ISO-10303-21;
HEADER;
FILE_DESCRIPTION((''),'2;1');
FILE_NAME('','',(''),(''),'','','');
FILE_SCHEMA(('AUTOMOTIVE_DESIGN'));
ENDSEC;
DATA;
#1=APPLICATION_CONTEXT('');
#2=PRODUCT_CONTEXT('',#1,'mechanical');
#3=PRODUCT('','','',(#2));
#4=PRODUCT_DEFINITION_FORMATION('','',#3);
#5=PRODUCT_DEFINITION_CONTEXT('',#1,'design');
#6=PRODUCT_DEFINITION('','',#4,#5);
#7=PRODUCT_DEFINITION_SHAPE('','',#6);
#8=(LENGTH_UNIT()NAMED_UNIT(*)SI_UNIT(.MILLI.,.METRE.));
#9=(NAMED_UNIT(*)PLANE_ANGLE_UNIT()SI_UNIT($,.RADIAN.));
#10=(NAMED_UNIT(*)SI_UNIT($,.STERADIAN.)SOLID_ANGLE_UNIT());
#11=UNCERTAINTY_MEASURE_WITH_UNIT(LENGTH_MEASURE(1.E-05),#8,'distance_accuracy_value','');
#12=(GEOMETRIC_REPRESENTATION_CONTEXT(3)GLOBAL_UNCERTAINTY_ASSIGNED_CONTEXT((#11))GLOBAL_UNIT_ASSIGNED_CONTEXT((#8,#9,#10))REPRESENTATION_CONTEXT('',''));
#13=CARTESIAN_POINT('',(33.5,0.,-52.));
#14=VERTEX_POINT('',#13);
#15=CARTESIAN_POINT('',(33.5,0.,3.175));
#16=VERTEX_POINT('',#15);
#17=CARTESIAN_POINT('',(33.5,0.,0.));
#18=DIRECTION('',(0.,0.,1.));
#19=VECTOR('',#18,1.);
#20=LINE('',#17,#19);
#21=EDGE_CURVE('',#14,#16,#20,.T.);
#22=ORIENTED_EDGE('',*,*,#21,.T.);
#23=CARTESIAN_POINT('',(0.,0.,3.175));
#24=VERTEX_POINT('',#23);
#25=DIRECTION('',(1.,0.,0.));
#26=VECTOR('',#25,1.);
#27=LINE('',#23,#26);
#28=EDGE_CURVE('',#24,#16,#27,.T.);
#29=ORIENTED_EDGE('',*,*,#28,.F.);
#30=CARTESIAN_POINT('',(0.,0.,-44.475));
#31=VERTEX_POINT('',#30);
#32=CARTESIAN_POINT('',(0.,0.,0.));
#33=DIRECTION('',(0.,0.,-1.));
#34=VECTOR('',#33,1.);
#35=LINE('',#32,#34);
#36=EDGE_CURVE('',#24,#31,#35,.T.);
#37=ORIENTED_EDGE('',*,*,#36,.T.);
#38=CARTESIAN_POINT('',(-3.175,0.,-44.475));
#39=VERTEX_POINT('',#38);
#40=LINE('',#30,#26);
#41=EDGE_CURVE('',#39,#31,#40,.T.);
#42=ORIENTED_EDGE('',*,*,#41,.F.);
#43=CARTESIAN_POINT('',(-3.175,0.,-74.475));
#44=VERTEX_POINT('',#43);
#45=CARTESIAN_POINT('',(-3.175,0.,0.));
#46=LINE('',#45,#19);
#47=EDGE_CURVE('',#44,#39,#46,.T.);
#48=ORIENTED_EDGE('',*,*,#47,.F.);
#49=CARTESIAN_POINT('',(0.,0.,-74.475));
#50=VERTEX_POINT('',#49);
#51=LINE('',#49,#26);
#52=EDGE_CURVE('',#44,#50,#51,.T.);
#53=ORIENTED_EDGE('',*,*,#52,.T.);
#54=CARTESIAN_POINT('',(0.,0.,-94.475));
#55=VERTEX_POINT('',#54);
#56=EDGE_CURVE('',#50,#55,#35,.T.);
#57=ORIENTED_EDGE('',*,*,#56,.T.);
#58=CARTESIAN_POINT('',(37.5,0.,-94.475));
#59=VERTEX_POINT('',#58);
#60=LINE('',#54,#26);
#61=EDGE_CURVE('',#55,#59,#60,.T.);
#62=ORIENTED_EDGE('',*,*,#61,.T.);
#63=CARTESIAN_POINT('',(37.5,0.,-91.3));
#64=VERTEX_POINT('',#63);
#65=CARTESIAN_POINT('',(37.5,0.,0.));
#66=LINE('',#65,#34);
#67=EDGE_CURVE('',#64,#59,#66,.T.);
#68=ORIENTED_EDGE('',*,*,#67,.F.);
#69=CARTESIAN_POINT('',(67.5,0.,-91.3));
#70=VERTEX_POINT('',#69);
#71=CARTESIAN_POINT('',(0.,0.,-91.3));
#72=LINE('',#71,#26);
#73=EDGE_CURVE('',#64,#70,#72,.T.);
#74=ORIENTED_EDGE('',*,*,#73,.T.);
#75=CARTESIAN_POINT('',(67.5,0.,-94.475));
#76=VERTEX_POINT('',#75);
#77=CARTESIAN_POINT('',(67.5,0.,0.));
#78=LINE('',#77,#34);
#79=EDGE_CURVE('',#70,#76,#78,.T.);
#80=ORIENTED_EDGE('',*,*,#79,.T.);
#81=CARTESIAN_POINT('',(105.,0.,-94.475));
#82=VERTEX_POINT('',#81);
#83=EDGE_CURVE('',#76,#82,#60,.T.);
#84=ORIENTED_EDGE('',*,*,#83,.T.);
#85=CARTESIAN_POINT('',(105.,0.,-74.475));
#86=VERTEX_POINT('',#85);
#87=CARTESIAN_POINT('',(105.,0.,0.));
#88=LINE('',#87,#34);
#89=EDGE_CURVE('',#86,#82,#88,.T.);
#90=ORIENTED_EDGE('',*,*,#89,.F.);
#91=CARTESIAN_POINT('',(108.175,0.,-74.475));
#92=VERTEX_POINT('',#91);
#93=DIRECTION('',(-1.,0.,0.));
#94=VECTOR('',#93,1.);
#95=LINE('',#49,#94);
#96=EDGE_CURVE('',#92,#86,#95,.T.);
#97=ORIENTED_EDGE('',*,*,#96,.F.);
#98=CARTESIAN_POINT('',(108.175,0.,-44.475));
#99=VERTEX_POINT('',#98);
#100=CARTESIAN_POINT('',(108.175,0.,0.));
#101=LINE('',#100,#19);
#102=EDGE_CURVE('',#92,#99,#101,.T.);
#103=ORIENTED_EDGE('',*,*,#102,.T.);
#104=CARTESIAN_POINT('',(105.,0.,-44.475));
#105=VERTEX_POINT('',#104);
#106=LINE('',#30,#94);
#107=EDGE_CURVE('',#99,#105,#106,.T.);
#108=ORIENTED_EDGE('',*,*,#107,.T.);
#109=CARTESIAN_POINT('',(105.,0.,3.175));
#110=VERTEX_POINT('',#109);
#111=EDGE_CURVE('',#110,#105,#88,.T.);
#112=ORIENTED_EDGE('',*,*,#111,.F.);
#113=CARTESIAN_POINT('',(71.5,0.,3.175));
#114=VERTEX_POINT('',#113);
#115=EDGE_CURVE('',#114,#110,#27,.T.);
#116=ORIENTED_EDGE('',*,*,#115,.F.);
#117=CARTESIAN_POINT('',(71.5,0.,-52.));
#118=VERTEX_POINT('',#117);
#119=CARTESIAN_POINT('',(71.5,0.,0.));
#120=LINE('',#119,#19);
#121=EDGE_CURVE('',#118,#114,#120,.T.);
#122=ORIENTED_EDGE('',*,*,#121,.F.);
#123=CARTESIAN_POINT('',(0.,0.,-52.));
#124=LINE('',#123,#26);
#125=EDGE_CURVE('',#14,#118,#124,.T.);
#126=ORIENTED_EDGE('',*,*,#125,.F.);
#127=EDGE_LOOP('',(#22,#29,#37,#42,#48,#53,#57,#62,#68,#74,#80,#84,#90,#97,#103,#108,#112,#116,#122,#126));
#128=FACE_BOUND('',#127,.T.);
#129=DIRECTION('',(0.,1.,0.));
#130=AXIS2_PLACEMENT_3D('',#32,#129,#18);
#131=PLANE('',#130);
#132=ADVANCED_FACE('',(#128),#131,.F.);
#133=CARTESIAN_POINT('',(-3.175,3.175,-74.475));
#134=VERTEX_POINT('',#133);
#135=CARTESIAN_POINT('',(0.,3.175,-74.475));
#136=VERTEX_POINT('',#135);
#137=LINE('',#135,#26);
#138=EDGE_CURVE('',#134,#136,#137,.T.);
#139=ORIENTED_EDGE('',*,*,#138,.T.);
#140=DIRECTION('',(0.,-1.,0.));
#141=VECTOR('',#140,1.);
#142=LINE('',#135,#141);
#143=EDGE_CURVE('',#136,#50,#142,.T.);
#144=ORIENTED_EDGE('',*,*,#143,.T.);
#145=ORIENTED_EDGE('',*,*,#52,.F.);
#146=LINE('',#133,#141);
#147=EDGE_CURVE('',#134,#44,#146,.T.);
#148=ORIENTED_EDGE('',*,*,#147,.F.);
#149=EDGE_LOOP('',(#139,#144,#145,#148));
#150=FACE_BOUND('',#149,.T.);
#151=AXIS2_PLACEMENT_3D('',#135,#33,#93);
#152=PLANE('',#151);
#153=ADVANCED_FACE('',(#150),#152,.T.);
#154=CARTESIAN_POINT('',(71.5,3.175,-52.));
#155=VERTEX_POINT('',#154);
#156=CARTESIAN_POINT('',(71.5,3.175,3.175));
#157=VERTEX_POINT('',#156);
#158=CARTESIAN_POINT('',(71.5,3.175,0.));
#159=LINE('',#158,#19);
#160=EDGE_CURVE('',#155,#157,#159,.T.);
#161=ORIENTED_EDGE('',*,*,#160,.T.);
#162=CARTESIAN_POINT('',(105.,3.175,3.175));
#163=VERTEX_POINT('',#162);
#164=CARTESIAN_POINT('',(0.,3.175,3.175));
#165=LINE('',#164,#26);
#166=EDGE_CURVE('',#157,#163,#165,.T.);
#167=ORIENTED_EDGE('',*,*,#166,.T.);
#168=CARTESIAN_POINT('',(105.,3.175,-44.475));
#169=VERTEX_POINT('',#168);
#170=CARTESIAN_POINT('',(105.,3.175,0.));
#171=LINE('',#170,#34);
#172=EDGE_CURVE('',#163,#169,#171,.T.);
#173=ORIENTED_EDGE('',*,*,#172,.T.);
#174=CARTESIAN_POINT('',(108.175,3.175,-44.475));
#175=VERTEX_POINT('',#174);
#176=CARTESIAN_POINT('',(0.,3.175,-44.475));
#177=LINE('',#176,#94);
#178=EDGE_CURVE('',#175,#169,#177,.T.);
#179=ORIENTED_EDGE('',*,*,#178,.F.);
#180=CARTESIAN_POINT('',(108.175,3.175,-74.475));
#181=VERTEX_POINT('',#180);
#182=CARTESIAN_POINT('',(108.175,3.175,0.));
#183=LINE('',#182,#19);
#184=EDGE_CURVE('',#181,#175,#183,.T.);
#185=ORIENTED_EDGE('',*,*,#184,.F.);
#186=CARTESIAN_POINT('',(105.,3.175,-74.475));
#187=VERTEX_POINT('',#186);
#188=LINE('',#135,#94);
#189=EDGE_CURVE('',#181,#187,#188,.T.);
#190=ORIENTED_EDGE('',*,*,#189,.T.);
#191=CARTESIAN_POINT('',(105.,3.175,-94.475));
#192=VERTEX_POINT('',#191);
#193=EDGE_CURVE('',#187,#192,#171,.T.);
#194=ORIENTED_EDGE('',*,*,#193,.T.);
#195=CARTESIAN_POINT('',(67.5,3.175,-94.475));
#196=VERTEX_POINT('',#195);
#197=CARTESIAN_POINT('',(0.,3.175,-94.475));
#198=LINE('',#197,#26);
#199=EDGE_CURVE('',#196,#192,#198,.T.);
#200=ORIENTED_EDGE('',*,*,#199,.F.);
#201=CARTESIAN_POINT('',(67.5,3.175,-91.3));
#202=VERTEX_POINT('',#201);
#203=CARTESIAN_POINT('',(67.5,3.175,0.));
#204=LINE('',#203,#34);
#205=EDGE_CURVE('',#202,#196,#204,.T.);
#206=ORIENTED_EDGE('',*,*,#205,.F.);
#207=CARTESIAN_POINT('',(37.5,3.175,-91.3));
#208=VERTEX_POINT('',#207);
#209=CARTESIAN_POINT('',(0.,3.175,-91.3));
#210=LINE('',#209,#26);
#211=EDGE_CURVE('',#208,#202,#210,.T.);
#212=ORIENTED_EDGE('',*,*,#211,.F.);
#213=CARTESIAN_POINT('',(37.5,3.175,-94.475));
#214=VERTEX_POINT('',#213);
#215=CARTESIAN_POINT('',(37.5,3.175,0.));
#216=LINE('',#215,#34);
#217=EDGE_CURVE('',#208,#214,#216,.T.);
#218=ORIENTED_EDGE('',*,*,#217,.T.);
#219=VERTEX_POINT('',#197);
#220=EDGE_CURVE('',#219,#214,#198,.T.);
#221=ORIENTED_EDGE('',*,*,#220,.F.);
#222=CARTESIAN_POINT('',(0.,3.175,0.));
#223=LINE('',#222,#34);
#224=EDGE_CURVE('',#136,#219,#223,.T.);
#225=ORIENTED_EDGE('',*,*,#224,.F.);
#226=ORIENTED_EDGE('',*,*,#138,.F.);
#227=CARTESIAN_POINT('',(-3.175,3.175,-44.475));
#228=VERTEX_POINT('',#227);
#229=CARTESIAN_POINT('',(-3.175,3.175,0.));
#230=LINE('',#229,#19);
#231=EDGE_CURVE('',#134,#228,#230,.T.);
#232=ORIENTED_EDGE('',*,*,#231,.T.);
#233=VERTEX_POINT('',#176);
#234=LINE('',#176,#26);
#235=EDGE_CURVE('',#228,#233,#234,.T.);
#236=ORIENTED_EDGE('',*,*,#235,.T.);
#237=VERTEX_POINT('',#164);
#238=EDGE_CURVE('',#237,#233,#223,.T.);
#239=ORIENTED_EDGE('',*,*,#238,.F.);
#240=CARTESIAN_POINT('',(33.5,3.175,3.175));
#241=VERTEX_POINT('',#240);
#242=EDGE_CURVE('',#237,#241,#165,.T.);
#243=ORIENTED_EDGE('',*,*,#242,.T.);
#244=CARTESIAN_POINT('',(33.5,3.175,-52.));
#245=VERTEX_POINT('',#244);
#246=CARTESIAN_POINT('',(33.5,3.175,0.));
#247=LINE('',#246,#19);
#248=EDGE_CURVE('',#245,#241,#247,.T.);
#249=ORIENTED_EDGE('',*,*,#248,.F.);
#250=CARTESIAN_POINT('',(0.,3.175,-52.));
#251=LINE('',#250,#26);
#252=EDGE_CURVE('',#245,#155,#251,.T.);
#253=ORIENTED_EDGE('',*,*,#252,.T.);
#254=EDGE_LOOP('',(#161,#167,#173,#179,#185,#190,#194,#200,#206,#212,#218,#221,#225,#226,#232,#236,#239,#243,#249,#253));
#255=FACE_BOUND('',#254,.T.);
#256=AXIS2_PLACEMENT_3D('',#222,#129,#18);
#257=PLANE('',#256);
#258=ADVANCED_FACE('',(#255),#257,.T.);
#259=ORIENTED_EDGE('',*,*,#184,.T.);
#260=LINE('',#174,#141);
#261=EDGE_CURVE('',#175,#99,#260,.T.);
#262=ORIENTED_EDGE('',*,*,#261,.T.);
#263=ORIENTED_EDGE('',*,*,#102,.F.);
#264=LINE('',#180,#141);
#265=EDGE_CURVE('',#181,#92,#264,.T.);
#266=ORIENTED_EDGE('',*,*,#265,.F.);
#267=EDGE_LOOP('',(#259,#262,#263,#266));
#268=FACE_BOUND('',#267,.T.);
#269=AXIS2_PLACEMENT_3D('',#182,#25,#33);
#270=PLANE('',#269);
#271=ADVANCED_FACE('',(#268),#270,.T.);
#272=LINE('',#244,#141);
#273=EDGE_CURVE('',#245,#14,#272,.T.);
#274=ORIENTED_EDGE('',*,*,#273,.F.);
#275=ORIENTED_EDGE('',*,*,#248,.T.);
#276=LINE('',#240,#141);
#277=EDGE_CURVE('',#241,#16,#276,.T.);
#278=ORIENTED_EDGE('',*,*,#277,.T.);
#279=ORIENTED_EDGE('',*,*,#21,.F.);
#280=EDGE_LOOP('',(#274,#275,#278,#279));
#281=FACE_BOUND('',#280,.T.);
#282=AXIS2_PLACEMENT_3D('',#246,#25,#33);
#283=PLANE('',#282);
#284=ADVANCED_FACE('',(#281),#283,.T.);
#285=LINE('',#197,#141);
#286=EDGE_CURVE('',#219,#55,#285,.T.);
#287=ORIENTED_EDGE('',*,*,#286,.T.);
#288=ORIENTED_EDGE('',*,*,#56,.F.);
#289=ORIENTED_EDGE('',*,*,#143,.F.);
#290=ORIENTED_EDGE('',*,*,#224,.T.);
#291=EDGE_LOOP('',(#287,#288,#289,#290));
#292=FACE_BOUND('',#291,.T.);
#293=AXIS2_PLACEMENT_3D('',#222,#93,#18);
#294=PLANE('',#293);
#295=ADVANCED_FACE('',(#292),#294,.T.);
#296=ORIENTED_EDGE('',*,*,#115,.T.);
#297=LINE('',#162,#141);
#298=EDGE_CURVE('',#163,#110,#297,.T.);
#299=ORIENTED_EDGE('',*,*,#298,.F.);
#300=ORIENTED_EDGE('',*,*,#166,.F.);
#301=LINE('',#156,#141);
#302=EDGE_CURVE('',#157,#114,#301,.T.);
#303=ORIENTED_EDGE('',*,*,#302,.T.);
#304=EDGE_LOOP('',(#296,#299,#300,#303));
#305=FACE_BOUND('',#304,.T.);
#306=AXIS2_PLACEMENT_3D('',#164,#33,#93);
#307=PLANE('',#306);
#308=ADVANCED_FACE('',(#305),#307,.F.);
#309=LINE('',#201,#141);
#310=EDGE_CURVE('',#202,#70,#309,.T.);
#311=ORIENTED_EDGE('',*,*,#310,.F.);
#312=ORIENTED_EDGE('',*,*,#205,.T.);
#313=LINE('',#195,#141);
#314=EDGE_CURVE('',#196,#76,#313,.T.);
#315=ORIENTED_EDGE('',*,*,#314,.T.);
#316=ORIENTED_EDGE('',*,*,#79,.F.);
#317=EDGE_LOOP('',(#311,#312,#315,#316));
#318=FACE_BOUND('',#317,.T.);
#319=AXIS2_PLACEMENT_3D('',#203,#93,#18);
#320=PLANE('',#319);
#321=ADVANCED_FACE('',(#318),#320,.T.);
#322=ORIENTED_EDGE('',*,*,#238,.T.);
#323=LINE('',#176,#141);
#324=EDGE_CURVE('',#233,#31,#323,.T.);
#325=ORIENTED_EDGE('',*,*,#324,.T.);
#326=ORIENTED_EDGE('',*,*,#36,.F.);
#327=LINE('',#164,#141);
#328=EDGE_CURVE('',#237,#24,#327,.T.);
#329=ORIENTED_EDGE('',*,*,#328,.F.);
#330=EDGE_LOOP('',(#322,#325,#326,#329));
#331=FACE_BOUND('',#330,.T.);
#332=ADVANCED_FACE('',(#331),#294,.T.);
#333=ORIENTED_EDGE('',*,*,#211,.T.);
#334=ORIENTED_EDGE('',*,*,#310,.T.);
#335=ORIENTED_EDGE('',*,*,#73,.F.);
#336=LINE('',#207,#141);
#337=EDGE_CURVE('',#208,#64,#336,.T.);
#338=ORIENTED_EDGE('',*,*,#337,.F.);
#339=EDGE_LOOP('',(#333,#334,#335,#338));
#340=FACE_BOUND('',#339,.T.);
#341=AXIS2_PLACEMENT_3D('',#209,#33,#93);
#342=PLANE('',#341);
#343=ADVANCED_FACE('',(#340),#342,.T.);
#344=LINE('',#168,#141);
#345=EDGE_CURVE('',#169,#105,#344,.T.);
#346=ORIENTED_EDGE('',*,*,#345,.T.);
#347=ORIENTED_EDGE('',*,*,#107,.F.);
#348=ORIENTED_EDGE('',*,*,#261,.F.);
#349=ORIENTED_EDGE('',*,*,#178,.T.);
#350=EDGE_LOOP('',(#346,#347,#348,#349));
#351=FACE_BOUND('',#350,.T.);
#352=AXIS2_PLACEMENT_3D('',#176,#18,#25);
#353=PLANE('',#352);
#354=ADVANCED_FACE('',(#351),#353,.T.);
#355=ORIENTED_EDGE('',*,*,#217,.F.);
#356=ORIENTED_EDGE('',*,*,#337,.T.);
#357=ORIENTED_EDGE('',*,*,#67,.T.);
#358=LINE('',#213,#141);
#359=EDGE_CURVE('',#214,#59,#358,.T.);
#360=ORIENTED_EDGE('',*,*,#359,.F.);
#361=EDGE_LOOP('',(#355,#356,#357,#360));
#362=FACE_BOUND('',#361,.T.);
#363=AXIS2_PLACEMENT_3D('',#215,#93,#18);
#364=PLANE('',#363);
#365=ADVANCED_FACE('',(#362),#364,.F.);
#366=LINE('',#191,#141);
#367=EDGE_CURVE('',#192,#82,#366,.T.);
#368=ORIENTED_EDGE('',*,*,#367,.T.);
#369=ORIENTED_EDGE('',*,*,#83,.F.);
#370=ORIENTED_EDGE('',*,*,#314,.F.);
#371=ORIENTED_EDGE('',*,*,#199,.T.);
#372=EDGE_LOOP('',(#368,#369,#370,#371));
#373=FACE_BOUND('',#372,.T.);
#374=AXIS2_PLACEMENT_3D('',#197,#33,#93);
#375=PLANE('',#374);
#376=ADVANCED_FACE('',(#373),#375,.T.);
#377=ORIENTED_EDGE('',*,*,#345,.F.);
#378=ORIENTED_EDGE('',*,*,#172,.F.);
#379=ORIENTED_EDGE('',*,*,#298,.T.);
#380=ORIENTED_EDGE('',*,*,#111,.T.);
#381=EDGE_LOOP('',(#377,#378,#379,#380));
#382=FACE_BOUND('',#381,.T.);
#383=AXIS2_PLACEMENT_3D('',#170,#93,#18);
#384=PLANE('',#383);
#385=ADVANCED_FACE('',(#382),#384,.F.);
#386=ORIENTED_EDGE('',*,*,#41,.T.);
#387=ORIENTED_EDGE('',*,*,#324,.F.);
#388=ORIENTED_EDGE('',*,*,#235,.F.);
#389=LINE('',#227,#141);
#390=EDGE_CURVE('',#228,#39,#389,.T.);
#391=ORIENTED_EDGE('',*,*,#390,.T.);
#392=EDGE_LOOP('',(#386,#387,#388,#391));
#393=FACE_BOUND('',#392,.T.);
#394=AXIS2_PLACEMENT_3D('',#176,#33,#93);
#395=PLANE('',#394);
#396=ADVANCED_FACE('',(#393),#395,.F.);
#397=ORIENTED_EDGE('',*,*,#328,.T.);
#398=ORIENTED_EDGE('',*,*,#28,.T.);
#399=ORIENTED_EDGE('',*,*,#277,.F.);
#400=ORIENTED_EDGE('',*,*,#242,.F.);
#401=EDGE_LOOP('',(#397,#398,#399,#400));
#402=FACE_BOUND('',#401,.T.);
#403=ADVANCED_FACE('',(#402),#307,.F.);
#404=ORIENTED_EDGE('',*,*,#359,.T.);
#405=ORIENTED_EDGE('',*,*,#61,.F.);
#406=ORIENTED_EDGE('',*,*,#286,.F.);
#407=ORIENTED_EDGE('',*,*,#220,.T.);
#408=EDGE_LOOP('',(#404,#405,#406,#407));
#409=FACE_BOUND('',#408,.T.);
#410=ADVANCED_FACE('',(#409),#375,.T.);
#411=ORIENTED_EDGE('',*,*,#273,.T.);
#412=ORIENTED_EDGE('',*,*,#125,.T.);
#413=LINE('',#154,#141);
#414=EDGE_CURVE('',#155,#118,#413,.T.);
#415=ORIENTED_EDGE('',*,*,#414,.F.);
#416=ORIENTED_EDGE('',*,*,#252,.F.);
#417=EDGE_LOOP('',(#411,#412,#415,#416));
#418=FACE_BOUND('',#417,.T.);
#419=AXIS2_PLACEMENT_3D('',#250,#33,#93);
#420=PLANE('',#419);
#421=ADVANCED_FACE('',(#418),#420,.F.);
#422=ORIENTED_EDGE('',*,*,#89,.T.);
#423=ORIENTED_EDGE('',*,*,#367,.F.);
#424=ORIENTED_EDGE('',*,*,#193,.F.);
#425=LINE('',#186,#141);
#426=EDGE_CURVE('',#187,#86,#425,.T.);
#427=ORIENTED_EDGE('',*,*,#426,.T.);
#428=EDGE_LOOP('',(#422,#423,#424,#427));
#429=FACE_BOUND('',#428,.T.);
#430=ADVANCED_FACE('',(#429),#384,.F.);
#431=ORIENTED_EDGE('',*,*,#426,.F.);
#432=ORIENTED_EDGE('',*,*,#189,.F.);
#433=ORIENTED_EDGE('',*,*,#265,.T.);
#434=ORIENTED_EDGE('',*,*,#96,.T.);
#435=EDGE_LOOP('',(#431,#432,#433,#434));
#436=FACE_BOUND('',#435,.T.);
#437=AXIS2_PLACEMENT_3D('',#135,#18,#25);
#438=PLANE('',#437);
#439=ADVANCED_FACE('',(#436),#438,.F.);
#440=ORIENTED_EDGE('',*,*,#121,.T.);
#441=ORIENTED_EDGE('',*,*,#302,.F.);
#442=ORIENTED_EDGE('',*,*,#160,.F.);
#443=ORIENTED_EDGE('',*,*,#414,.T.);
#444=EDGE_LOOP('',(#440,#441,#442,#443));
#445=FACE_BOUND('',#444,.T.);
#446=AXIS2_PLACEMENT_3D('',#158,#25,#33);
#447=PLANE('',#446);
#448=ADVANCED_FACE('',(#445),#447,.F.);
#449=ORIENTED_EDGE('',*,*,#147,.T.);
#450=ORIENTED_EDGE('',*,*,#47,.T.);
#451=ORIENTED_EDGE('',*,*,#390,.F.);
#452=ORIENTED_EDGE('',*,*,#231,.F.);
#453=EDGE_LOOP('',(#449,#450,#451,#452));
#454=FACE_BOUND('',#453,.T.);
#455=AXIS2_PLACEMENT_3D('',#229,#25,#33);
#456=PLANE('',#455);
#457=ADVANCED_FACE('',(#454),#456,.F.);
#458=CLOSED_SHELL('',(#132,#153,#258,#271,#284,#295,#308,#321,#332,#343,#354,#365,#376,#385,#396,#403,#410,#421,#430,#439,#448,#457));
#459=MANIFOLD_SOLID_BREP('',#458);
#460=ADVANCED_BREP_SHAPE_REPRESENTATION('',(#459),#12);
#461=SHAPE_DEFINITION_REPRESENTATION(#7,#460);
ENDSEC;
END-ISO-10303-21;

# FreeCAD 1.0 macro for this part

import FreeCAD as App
import Part
import Sketcher

V = App.Vector
Q = App.Units.Quantity


def add_polygon(sketch, points):
    """Adds a closed chain of lines whose ends are joined by coincident constraints."""
    first, n = sketch.GeometryCount, len(points)
    for a, b in zip(points, points[1:] + points[:1]):
        sketch.addGeometry(Part.LineSegment(App.Vector(*a, 0), App.Vector(*b, 0)), False)
    for i in range(n):
        sketch.addConstraint(Sketcher.Constraint("Coincident", first + i, 2, first + (i + 1) % n, 1))

doc = App.newDocument("Part")
body = doc.addObject("PartDesign::Body", "Body")

sketch1 = body.newObject("Sketcher::SketchObject", "Sketch")
sketch1.AttachmentSupport = (doc.getObject("XZ_Plane"), [""])
sketch1.MapMode = "FlatFace"
add_polygon(sketch1, [(33.5, -52), (71.5, -52), (71.5, 3.175), (105, 3.175), (105, -44.475), (108.175, -44.475), (108.175, -74.475), (105, -74.475), (105, -94.475), (67.5, -94.475), (67.5, -91.3), (37.5, -91.3), (37.5, -94.475), (0, -94.475), (0, -74.475), (-3.175, -74.475), (-3.175, -44.475), (0, -44.475), (0, 3.175), (33.5, 3.175)])
sketch1.addConstraint(Sketcher.Constraint("Horizontal", 0))
sketch1.addConstraint(Sketcher.Constraint("Vertical", 1))
sketch1.addConstraint(Sketcher.Constraint("Horizontal", 2))
sketch1.addConstraint(Sketcher.Constraint("Vertical", 3))
sketch1.addConstraint(Sketcher.Constraint("Horizontal", 4))
sketch1.addConstraint(Sketcher.Constraint("Vertical", 5))
sketch1.addConstraint(Sketcher.Constraint("Horizontal", 6))
sketch1.addConstraint(Sketcher.Constraint("Vertical", 7))
sketch1.addConstraint(Sketcher.Constraint("Horizontal", 8))
sketch1.addConstraint(Sketcher.Constraint("Vertical", 9))
sketch1.addConstraint(Sketcher.Constraint("Horizontal", 10))
sketch1.addConstraint(Sketcher.Constraint("Vertical", 11))
sketch1.addConstraint(Sketcher.Constraint("Horizontal", 12))
sketch1.addConstraint(Sketcher.Constraint("Vertical", 13))
sketch1.addConstraint(Sketcher.Constraint("Horizontal", 14))
sketch1.addConstraint(Sketcher.Constraint("Vertical", 15))
sketch1.addConstraint(Sketcher.Constraint("Horizontal", 16))
sketch1.addConstraint(Sketcher.Constraint("Vertical", 17))
sketch1.addConstraint(Sketcher.Constraint("Horizontal", 18))
sketch1.addConstraint(Sketcher.Constraint("Vertical", 19))
sketch1.addConstraint(Sketcher.Constraint("PointOnObject", 12, 2, -2))
sketch1.addConstraint(Sketcher.Constraint("PointOnObject", 16, 2, -2))
sketch1.addConstraint(Sketcher.Constraint("Horizontal", 8, 2, 11, 2))
sketch1.addConstraint(Sketcher.Constraint("Horizontal", 6, 2, 13, 2))
sketch1.addConstraint(Sketcher.Constraint("Horizontal", 4, 2, 15, 2))
sketch1.addConstraint(Sketcher.Constraint("Horizontal", 2, 2, 17, 2))
sketch1.addConstraint(Sketcher.Constraint("Vertical", 3, 2, 6, 2))
sketch1.addConstraint(Sketcher.Constraint("Equal", 8, 12))
sketch1.addConstraint(Sketcher.Constraint("Equal", 6, 14))
sketch1.addConstraint(Sketcher.Constraint("Equal", 2, 18))
sketch1.addConstraint(Sketcher.Constraint("Equal", 10, 5))
sketch1.addConstraint(Sketcher.Constraint("Equal", 16, 9))
sketch1.addConstraint(Sketcher.Constraint("DistanceX", 0, 1, 0, 2, Q("38 mm")))
sketch1.addConstraint(Sketcher.Constraint("DistanceX", 10, 2, 10, 1, Q("30 mm")))
sketch1.addConstraint(Sketcher.Constraint("DistanceY", 7, 2, 7, 1, Q("20 mm")))
sketch1.addConstraint(Sketcher.Constraint("DistanceX", 2, 1, 2, 2, Q("33.5 mm")))
sketch1.addConstraint(Sketcher.Constraint("DistanceY", 0, 2, -1, 1, Q("52 mm")))
sketch1.addConstraint(Sketcher.Constraint("DistanceY", 3, 2, 3, 1, Q("47.65 mm")))
sketch1.addConstraint(Sketcher.Constraint("DistanceY", 9, 2, -1, 1, Q("91.3 mm")))
sketch1.addConstraint(Sketcher.Constraint("DistanceX", 4, 1, 4, 2, Q("3.175 mm")))
pad1 = body.newObject("PartDesign::Pad", "Pad")
pad1.Profile = sketch1
pad1.Length = 3.175
pad1.Reversed = True

doc.recompute()
